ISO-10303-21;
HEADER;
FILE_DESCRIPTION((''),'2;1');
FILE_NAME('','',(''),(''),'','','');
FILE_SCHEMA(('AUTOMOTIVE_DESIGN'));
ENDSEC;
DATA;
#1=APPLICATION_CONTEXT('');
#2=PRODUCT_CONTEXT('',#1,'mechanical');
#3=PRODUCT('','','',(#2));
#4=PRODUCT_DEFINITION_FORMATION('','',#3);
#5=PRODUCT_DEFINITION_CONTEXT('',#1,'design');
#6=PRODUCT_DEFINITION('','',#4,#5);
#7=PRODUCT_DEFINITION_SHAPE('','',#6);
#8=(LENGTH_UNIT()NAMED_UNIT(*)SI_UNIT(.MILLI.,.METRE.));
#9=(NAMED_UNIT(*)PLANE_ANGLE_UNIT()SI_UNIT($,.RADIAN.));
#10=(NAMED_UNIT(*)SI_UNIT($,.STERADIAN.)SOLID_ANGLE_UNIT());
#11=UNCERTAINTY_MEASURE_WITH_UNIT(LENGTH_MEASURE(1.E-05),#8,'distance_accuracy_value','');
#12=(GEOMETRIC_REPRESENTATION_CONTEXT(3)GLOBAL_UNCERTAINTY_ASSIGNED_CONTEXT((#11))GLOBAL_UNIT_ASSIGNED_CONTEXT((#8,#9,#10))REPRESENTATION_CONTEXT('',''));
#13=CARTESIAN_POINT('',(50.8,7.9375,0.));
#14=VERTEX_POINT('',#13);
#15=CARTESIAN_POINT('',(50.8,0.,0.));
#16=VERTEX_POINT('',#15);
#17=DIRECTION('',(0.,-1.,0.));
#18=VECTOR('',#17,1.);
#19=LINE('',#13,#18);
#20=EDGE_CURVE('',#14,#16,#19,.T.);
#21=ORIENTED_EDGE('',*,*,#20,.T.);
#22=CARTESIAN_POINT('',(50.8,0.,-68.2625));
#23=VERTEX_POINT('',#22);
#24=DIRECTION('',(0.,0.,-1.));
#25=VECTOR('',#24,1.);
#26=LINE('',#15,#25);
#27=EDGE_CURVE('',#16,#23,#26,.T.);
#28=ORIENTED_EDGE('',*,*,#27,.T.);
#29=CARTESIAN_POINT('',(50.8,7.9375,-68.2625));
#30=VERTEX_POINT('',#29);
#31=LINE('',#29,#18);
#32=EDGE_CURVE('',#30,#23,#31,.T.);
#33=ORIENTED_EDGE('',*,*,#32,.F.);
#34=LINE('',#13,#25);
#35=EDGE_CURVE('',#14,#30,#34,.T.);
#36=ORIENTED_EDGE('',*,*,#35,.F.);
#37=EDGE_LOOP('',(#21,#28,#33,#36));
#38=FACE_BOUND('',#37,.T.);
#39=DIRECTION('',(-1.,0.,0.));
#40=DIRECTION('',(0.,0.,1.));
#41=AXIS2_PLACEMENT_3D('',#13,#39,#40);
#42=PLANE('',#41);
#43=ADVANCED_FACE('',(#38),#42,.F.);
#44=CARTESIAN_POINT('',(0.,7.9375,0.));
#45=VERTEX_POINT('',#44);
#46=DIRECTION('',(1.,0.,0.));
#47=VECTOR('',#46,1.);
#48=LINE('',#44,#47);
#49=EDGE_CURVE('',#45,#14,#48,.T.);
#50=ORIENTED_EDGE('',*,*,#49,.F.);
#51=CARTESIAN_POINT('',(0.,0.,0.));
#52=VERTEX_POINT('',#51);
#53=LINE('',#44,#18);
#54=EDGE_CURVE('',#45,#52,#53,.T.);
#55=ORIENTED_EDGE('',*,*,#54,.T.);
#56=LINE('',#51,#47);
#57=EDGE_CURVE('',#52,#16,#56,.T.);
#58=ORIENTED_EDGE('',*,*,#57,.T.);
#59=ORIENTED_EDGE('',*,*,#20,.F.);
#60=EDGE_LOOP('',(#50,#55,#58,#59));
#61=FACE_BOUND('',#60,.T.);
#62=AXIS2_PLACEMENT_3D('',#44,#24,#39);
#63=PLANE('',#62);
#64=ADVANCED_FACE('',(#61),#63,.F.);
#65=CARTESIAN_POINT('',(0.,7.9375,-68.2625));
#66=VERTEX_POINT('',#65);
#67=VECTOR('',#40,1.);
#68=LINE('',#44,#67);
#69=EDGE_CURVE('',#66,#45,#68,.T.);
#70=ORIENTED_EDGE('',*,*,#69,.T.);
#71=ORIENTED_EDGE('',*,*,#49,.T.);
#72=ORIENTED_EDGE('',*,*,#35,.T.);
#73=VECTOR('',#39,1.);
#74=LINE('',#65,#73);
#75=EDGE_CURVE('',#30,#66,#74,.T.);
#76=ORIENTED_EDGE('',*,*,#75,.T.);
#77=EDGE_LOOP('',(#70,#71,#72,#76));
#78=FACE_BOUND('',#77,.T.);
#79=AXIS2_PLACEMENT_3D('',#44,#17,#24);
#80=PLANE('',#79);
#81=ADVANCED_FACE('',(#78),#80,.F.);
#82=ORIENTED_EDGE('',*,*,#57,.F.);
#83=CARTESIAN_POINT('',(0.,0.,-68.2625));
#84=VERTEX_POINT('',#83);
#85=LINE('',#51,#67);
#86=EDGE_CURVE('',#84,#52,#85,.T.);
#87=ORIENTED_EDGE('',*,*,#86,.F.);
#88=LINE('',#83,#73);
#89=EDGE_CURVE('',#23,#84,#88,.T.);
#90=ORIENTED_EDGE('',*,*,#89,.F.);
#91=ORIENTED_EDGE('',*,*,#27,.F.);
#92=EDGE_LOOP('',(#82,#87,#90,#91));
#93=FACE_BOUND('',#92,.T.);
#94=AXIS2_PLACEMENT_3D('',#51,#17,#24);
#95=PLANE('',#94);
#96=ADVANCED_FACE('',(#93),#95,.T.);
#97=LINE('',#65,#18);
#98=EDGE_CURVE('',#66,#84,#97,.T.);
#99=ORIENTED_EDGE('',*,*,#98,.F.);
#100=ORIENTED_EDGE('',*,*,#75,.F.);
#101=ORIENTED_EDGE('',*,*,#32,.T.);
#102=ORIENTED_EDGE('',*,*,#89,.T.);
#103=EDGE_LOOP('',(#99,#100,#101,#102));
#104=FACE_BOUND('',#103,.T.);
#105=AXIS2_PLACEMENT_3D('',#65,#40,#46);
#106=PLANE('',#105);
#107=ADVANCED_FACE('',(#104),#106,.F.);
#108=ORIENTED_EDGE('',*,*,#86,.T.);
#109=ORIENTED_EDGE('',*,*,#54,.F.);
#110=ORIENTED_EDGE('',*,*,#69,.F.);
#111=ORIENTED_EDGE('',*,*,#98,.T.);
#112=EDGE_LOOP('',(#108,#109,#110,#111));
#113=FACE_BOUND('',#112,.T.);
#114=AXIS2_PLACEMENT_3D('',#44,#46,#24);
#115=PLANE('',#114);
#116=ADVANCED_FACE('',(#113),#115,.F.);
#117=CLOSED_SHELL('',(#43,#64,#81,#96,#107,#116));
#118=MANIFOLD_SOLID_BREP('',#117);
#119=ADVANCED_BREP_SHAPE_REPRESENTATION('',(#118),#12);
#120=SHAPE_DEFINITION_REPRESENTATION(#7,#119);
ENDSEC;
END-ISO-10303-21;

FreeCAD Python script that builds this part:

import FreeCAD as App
import Part
import Sketcher
Q = App.Units.Quantity

doc = App.newDocument("Part")
params = doc.addObject("Spreadsheet::Sheet", "Params")
for row, (alias, value) in enumerate([
    ("sketch1_width", "2 in"),
    ("sketch1_height", "2.6875 in"),
    ("pad1_length", "0.3125 in"),
], start=1):
    params.set(f"A{row}", alias)
    params.set(f"B{row}", "=" + value)
    params.setAlias(f"B{row}", alias)

body = doc.addObject("PartDesign::Body", "Body")

# Sketch on XZ plane
sketch1 = body.newObject("Sketcher::SketchObject", "Sketch")
sketch1.AttachmentSupport = (doc.getObject("XZ_Plane"), [""])
sketch1.MapMode = "FlatFace"
sketch1.addGeometry([
    Part.LineSegment(App.Vector(0, -68, 0), App.Vector(0, 0, 0)),
    Part.LineSegment(App.Vector(0, 0, 0), App.Vector(51, 0, 0)),
    Part.LineSegment(App.Vector(51, 0, 0), App.Vector(51, -68, 0)),
    Part.LineSegment(App.Vector(51, -68, 0), App.Vector(0, -68, 0)),
], False)
sketch1.addConstraint([
    Sketcher.Constraint("Coincident", 0, 2, 1, 1),
    Sketcher.Constraint("Coincident", 1, 2, 2, 1),
    Sketcher.Constraint("Coincident", 2, 2, 3, 1),
    Sketcher.Constraint("Coincident", 3, 2, 0, 1),
    Sketcher.Constraint("Vertical", 0),
    Sketcher.Constraint("Horizontal", 1),
    Sketcher.Constraint("Vertical", 2),
    Sketcher.Constraint("Horizontal", 3),
    Sketcher.Constraint("Coincident", 0, 2, -1, 1),
    Sketcher.Constraint("DistanceX", 1, 1, 1, 2, Q("2 in")),
    Sketcher.Constraint("DistanceY", 0, 1, 0, 2, Q("2.6875 in")),
])
sketch1.setExpression("Constraints[9]", "Params.sketch1_width")
sketch1.setExpression("Constraints[10]", "Params.sketch1_height")
pad1 = body.newObject("PartDesign::Pad", "Pad")
pad1.Profile = sketch1
pad1.setExpression("Length", "Params.pad1_length")
pad1.Reversed = True

doc.recompute()
